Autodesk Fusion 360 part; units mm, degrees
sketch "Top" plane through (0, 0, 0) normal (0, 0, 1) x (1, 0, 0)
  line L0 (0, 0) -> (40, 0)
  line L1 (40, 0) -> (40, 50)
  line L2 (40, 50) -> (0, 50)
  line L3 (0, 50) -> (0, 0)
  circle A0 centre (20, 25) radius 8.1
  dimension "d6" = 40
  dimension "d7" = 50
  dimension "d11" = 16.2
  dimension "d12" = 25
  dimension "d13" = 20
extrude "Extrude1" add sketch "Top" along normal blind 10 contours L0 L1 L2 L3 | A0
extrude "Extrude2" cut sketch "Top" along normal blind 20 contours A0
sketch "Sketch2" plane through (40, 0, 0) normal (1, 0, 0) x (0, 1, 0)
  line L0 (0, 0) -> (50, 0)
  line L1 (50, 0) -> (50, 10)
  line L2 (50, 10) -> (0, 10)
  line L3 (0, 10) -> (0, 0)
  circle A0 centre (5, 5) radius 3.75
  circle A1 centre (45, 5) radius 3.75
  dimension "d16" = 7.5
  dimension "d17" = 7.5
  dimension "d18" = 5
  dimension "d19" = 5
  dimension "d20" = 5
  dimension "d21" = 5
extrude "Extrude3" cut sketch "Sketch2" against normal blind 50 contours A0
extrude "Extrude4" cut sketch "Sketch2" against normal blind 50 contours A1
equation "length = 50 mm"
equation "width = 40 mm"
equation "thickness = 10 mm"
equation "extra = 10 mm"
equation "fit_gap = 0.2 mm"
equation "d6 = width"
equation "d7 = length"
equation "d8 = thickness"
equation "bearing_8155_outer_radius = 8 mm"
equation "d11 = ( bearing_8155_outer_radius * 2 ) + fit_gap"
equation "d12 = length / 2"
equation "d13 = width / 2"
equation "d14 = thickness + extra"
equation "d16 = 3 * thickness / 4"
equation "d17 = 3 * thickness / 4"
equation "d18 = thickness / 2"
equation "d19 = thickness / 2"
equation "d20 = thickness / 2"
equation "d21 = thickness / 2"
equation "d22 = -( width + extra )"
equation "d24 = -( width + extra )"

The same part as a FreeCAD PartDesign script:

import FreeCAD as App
import Part
import Sketcher

V = App.Vector
Q = App.Units.Quantity


def add_polygon(sketch, points):
    """Adds a closed chain of lines whose ends are joined by coincident constraints."""
    first, n = sketch.GeometryCount, len(points)
    for a, b in zip(points, points[1:] + points[:1]):
        sketch.addGeometry(Part.LineSegment(App.Vector(*a, 0), App.Vector(*b, 0)), False)
    for i in range(n):
        sketch.addConstraint(Sketcher.Constraint("Coincident", first + i, 2, first + (i + 1) % n, 1))

doc = App.newDocument("Part")
body = doc.addObject("PartDesign::Body", "Body")

sketch1 = doc.addObject("Sketcher::SketchObject", "Sketch")
body.addObject(sketch1)
sketch1.AttachmentSupport = (doc.XY_Plane, [""])
sketch1.MapMode = "FlatFace"
add_polygon(sketch1, [(0, 50), (0, 0), (40, 0), (40, 50)])
sketch1.addConstraint([
    Sketcher.Constraint("Vertical", 0),
    Sketcher.Constraint("Horizontal", 1),
    Sketcher.Constraint("Vertical", 2),
    Sketcher.Constraint("Horizontal", 3),
    Sketcher.Constraint("Coincident", 0, 2, -1, 1),
    Sketcher.Constraint("DistanceX", 1, 1, 1, 2, Q("40 mm")),
    Sketcher.Constraint("DistanceY", 0, 2, 0, 1, Q("50 mm")),
])
pad1 = doc.addObject("PartDesign::Pad", "Pad")
body.addObject(pad1)
pad1.Profile = sketch1
pad1.Length = 10

sketch2 = doc.addObject("Sketcher::SketchObject", "Sketch001")
body.addObject(sketch2)
sketch2.AttachmentSupport = (doc.XY_Plane, [""])
sketch2.MapMode = "FlatFace"
sketch2.addGeometry(Part.Circle(V(20, 25, 0), V(0, 0, 1), 8), False)
sketch2.addConstraint([
    Sketcher.Constraint("Diameter", 0, Q("16.2 mm")),
    Sketcher.Constraint("DistanceX", -1, 1, 0, 3, Q("20 mm")),
    Sketcher.Constraint("DistanceY", -1, 1, 0, 3, Q("25 mm")),
])
pocket1 = doc.addObject("PartDesign::Pocket", "Pocket")
body.addObject(pocket1)
pocket1.Profile = sketch2
pocket1.Length = 20
pocket1.Reversed = True

sketch3 = doc.addObject("Sketcher::SketchObject", "Sketch002")
body.addObject(sketch3)
sketch3.AttachmentSupport = (doc.YZ_Plane, [""])
sketch3.MapMode = "FlatFace"
sketch3.AttachmentOffset = App.Placement(V(0, 0, 40), App.Rotation())
sketch3.addGeometry(Part.Circle(V(5, 5, 0), V(0, 0, 1), 3.8), False)
sketch3.addConstraint([
    Sketcher.Constraint("Diameter", 0, Q("7.5 mm")),
    Sketcher.Constraint("DistanceX", -1, 1, 0, 3, Q("5 mm")),
    Sketcher.Constraint("DistanceY", -1, 1, 0, 3, Q("5 mm")),
])
pocket2 = doc.addObject("PartDesign::Pocket", "Pocket001")
body.addObject(pocket2)
pocket2.Profile = sketch3
pocket2.Length = 50

sketch4 = doc.addObject("Sketcher::SketchObject", "Sketch003")
body.addObject(sketch4)
sketch4.AttachmentSupport = (doc.YZ_Plane, [""])
sketch4.MapMode = "FlatFace"
sketch4.AttachmentOffset = App.Placement(V(0, 0, 40), App.Rotation())
sketch4.addGeometry(Part.Circle(V(45, 5, 0), V(0, 0, 1), 3.8), False)
sketch4.addConstraint([
    Sketcher.Constraint("Diameter", 0, Q("7.5 mm")),
    Sketcher.Constraint("DistanceY", -1, 1, 0, 3, Q("5 mm")),
    Sketcher.Constraint("DistanceX", -1, 1, 0, 3, Q("45 mm")),
])
pocket3 = doc.addObject("PartDesign::Pocket", "Pocket002")
body.addObject(pocket3)
pocket3.Profile = sketch4
pocket3.Length = 50

doc.recompute()
